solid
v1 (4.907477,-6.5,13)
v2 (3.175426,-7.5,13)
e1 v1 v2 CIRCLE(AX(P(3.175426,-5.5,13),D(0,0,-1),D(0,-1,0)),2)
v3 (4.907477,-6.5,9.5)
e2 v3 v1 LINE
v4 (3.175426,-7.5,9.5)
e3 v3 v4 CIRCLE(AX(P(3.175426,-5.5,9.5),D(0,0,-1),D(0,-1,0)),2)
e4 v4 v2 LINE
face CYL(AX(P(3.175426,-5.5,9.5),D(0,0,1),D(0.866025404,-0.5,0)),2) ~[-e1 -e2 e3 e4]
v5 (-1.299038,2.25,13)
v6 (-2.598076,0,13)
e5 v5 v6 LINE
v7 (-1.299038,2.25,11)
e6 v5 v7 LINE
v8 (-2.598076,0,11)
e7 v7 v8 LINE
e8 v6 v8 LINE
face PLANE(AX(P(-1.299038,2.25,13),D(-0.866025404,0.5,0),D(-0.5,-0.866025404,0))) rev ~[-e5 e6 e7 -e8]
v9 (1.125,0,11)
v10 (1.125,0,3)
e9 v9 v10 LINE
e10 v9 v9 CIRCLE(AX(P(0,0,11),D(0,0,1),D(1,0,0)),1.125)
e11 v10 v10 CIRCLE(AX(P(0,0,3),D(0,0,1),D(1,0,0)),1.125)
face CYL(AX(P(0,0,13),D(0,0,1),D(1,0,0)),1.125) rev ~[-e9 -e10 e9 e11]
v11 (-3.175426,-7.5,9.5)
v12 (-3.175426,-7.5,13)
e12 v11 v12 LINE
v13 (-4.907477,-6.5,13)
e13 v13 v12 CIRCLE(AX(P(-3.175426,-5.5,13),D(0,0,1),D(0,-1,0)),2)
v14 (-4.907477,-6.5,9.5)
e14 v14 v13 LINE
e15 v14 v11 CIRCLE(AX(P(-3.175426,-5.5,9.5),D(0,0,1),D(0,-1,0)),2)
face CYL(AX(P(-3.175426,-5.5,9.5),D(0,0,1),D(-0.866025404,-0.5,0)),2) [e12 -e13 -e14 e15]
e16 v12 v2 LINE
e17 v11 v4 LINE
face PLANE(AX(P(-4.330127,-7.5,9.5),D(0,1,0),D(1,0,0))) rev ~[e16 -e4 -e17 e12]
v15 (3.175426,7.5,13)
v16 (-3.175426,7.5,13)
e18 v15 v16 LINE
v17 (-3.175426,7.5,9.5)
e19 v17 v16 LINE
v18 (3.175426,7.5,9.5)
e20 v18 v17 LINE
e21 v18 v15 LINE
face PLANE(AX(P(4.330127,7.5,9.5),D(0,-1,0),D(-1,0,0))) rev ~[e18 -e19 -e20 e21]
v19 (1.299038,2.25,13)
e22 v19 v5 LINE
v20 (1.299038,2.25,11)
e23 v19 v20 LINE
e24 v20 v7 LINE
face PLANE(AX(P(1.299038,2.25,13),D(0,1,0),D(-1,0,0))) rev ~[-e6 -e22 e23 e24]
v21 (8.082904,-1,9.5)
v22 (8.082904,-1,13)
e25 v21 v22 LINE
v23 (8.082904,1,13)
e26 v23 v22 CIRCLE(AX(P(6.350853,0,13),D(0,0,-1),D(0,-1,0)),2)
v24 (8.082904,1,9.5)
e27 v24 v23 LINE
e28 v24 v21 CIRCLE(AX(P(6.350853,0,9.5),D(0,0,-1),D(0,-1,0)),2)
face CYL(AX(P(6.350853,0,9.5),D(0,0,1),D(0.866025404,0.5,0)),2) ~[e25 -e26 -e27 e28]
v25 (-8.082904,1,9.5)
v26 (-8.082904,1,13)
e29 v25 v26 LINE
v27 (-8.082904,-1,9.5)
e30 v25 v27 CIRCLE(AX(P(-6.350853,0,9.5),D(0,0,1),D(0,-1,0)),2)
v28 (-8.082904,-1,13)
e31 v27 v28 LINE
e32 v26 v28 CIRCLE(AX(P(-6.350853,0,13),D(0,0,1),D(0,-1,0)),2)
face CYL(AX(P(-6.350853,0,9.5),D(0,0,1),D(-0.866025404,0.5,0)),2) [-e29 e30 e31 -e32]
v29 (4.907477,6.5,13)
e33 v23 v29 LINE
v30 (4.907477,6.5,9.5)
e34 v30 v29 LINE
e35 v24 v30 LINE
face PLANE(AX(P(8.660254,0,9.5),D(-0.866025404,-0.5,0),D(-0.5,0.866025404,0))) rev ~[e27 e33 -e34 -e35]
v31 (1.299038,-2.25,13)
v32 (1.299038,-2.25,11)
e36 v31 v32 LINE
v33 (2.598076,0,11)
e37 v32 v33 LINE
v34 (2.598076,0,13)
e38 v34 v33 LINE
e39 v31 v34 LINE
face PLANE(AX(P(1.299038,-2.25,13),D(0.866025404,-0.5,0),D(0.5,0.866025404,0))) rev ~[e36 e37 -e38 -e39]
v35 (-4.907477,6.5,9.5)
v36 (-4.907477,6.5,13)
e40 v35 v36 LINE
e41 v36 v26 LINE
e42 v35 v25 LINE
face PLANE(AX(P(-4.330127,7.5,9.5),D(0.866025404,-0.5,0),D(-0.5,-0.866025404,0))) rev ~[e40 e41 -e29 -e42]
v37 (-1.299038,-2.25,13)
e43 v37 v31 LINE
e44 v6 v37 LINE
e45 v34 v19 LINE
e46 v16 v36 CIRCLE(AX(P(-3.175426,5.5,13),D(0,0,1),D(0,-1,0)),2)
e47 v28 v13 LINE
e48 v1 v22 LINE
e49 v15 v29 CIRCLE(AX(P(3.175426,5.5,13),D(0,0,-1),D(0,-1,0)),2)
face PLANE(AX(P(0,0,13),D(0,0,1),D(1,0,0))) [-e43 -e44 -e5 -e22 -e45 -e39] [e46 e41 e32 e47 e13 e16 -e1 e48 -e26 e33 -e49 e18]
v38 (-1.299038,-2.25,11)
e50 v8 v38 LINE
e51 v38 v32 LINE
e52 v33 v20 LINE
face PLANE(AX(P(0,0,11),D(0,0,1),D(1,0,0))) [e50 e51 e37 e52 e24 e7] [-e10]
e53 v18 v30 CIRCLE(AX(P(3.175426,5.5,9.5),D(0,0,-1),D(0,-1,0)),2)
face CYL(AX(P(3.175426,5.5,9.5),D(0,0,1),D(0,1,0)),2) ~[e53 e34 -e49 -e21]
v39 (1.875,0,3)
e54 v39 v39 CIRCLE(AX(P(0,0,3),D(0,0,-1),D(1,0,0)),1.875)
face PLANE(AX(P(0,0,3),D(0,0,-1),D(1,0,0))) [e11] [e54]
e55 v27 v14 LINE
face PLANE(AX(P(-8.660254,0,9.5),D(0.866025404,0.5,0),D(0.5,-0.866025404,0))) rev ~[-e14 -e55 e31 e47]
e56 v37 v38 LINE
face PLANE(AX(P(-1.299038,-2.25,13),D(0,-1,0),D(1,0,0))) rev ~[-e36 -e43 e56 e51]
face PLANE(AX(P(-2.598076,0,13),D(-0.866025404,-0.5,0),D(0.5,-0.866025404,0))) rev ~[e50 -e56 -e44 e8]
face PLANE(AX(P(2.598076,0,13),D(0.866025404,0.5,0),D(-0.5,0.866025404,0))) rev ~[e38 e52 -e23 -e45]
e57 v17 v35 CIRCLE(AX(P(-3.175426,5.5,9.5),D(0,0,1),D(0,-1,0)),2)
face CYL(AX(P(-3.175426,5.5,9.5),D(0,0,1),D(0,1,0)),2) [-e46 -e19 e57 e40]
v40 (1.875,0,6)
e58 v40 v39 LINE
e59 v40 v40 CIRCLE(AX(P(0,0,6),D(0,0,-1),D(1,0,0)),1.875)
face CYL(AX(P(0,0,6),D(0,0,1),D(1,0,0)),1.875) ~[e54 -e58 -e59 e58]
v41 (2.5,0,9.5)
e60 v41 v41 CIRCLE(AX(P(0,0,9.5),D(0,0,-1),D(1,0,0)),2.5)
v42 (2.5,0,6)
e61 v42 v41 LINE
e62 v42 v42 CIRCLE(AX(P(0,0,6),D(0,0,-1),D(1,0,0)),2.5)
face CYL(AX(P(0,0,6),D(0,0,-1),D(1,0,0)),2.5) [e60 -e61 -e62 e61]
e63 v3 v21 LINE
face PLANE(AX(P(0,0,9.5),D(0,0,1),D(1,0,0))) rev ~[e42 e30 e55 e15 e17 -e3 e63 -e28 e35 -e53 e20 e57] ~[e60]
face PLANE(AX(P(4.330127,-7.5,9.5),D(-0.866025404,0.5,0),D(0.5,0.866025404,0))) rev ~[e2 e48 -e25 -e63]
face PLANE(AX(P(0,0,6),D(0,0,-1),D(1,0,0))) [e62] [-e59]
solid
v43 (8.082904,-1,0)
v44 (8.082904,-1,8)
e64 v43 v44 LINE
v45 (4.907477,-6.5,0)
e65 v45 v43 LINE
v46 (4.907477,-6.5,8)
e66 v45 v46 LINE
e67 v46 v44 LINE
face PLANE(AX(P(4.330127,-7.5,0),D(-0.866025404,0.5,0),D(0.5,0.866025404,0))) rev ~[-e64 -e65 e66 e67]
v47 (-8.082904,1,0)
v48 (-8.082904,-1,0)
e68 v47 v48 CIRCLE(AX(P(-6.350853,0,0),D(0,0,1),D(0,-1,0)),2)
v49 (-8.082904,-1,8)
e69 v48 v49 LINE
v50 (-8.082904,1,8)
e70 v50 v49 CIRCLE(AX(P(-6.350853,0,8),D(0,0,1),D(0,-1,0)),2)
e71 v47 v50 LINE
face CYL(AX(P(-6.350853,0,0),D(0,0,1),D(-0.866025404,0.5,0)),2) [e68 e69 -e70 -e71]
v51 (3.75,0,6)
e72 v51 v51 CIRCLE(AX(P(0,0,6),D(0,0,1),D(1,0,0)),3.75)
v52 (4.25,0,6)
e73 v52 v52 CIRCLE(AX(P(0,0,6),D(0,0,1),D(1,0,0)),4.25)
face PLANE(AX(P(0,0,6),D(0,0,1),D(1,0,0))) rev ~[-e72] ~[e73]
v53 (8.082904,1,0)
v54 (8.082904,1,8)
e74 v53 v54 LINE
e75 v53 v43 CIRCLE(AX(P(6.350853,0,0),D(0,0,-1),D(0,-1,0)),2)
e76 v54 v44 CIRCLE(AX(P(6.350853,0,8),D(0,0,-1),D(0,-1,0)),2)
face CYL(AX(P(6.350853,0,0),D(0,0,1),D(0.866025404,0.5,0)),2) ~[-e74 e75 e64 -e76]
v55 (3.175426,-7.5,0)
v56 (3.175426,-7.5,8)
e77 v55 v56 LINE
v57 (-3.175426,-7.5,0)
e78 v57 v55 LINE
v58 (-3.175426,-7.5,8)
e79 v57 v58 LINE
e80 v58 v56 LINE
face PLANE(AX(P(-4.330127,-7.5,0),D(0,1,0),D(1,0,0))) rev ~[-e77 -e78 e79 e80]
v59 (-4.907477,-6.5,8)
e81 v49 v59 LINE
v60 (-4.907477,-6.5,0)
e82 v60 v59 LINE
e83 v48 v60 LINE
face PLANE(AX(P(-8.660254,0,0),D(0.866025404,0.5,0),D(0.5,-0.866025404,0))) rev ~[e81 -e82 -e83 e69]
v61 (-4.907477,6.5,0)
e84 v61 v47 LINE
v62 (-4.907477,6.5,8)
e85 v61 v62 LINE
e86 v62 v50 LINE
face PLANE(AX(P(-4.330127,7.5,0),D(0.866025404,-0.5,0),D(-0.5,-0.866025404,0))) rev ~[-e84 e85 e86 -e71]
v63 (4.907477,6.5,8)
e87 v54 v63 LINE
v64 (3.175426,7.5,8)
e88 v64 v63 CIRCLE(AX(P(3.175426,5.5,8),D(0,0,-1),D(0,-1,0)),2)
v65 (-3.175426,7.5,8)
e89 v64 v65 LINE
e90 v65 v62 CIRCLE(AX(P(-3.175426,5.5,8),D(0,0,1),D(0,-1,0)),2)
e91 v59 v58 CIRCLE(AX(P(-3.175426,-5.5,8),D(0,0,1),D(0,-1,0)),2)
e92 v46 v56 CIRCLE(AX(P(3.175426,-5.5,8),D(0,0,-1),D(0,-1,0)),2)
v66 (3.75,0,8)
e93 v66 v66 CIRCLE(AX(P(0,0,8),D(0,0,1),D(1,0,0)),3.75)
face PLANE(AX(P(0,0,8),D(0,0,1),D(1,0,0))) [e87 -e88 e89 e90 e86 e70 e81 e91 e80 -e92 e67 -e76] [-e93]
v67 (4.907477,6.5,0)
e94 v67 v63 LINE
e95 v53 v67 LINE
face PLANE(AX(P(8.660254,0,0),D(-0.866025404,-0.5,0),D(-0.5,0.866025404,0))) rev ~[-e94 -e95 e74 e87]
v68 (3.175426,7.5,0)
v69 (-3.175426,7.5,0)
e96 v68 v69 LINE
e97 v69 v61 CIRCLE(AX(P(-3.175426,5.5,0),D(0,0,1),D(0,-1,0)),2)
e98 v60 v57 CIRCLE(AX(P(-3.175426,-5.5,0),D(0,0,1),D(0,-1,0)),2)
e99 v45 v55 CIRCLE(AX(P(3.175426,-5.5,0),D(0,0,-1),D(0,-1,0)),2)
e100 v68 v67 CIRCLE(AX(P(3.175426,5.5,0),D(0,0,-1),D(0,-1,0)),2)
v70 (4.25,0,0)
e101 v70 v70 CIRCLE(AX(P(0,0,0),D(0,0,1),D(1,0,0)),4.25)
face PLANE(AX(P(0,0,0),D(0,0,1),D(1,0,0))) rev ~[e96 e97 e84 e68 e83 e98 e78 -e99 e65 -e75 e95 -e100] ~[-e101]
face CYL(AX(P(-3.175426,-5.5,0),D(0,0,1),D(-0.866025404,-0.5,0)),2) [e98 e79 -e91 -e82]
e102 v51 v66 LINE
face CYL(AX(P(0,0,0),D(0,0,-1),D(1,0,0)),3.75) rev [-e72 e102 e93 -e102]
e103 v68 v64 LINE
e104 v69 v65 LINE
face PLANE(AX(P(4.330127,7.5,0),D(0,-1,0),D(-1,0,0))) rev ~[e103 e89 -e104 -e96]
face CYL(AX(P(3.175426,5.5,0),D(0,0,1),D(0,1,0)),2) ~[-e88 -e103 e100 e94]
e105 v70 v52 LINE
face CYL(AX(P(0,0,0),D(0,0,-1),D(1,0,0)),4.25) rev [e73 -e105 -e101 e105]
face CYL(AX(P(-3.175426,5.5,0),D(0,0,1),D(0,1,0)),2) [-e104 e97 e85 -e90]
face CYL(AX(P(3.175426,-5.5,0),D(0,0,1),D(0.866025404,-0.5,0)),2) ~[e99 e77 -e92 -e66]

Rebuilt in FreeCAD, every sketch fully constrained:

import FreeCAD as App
import Part
import Sketcher
Q = App.Units.Quantity


def edges_at(feature, points):
    """Names of the edges that pass closest to the given points."""
    edges = feature.Shape.Edges
    near = lambda p: min(range(len(edges)), key=lambda i: edges[i].distToShape(Part.Vertex(*p))[0])
    return sorted({f"Edge{near(p) + 1}" for p in points})


def add_polygon(sketch, points):
    """Adds a closed chain of lines whose ends are joined by coincident constraints."""
    first, n = sketch.GeometryCount, len(points)
    for a, b in zip(points, points[1:] + points[:1]):
        sketch.addGeometry(Part.LineSegment(App.Vector(*a, 0), App.Vector(*b, 0)), False)
    for i in range(n):
        sketch.addConstraint(Sketcher.Constraint("Coincident", first + i, 2, first + (i + 1) % n, 1))

doc = App.newDocument("Part")
body = doc.addObject("PartDesign::Body", "Body")

sketch1 = body.newObject("Sketcher::SketchObject", "Sketch")
sketch1.AttachmentSupport = (doc.getObject("XY_Plane"), [""])
sketch1.MapMode = "FlatFace"
add_polygon(sketch1, [(4.330127, 7.5), (-4.330127, 7.5), (-8.660254, 0), (-4.330127, -7.5), (4.330127, -7.5), (8.660254, 0)])
sketch1.addGeometry(Part.Circle(App.Vector(0, 0, 0), App.Vector(0, 0, 1), 3.75), False)
sketch1.addConstraint([
    Sketcher.Constraint("Horizontal", 0),
    Sketcher.Constraint("Horizontal", 3),
    Sketcher.Constraint("Coincident", 6, 3, -1, 1),
    Sketcher.Constraint("Symmetric", 0, 2, 3, 2, -1, 1),
    Sketcher.Constraint("Symmetric", 1, 2, 4, 2, -1, 1),
    Sketcher.Constraint("PointOnObject", 1, 2, -1),
    Sketcher.Constraint("Parallel", 2, 5),
    Sketcher.Constraint("Vertical", 0, 2, 2, 2),
    Sketcher.Constraint("Diameter", 6, 7.5),
    Sketcher.Constraint("Angle", 1, Q("-120 deg")),
    Sketcher.Constraint("DistanceY", 2, 2, 0, 2, 15.0),
    Sketcher.Constraint("DistanceX", 0, 2, 0, 1, 8.660254),
])
pad1 = body.newObject("PartDesign::Pad", "Pad")
pad1.Profile = sketch1
pad1.Length = 8

sketch2 = body.newObject("Sketcher::SketchObject", "Sketch001")
sketch2.AttachmentSupport = (doc.getObject("XY_Plane"), [""])
sketch2.MapMode = "FlatFace"
sketch2.addGeometry([
    Part.Circle(App.Vector(0, 0, 0), App.Vector(0, 0, 1), 4.25),
    Part.Circle(App.Vector(0, 0, 0), App.Vector(0, 0, 1), 3.75),
], False)
sketch2.addConstraint([
    Sketcher.Constraint("Coincident", 0, 3, -1, 1),
    Sketcher.Constraint("Coincident", 1, 3, -1, 1),
    Sketcher.Constraint("Diameter", 0, 8.5),
    Sketcher.Constraint("Diameter", 1, 7.5),
])
pocket1 = body.newObject("PartDesign::Pocket", "Pocket")
pocket1.Profile = sketch2
pocket1.Length = 6
pocket1.Reversed = True
doc.recompute()

fillet = body.newObject("PartDesign::Fillet", "Fillet")
fillet.Base = (pocket1, edges_at(pocket1, [
    (-8.66, 0, 4),
    (-4.33, 7.5, 4),
    (-4.33, -7.5, 4),
    (4.33, -7.5, 4),
    (8.66, 0, 4),
    (4.33, 7.5, 4),
]))
fillet.Radius = 2
body2 = doc.addObject("PartDesign::Body", "Body001")

sketch3 = body2.newObject("Sketcher::SketchObject", "Sketch002")
sketch3.AttachmentSupport = (doc.getObject("XY_Plane001"), [""])
sketch3.MapMode = "FlatFace"
sketch3.AttachmentOffset = App.Placement(App.Vector(0, 0, 6), App.Rotation())
sketch3.addGeometry(Part.Circle(App.Vector(0, 0, 0), App.Vector(0, 0, 1), 2.5), False)
sketch3.addConstraint([
    Sketcher.Constraint("Coincident", 0, 3, -1, 1),
    Sketcher.Constraint("Diameter", 0, 5.0),
])
pad2 = body2.newObject("PartDesign::Pad", "Pad001")
pad2.Profile = sketch3
pad2.Length = 3.5

sketch4 = body2.newObject("Sketcher::SketchObject", "Sketch003")
sketch4.AttachmentSupport = (doc.getObject("XY_Plane001"), [""])
sketch4.MapMode = "FlatFace"
sketch4.AttachmentOffset = App.Placement(App.Vector(0, 0, 9.5), App.Rotation())
add_polygon(sketch4, [(4.330127, 7.5), (-4.330127, 7.5), (-8.660254, 0), (-4.330127, -7.5), (4.330127, -7.5), (8.660254, 0)])
sketch4.addConstraint([
    Sketcher.Constraint("Horizontal", 0),
    Sketcher.Constraint("Horizontal", 3),
    Sketcher.Constraint("Symmetric", 0, 2, 3, 2, -1, 1),
    Sketcher.Constraint("Symmetric", 1, 2, 4, 2, -1, 1),
    Sketcher.Constraint("PointOnObject", 1, 2, -1),
    Sketcher.Constraint("Parallel", 2, 5),
    Sketcher.Constraint("Vertical", 0, 2, 2, 2),
    Sketcher.Constraint("Angle", 1, Q("-120 deg")),
    Sketcher.Constraint("DistanceY", 2, 2, 0, 2, 15.0),
    Sketcher.Constraint("DistanceX", 0, 2, 0, 1, 8.660254),
])
pad3 = body2.newObject("PartDesign::Pad", "Pad002")
pad3.Profile = sketch4
pad3.Length = 3.5

sketch5 = body2.newObject("Sketcher::SketchObject", "Sketch004")
sketch5.AttachmentSupport = (doc.getObject("XY_Plane001"), [""])
sketch5.MapMode = "FlatFace"
sketch5.AttachmentOffset = App.Placement(App.Vector(0, 0, 13), App.Rotation())
add_polygon(sketch5, [(1.299038, 2.25), (-1.299038, 2.25), (-2.598076, 0), (-1.299038, -2.25), (1.299038, -2.25), (2.598076, 0)])
sketch5.addGeometry(Part.Circle(App.Vector(0, 0, 0), App.Vector(0, 0, 1), 1.125), False)
sketch5.addConstraint([
    Sketcher.Constraint("Horizontal", 0),
    Sketcher.Constraint("Horizontal", 3),
    Sketcher.Constraint("Coincident", 6, 3, -1, 1),
    Sketcher.Constraint("Symmetric", 0, 2, 3, 2, -1, 1),
    Sketcher.Constraint("Symmetric", 1, 2, 4, 2, -1, 1),
    Sketcher.Constraint("PointOnObject", 1, 2, -1),
    Sketcher.Constraint("Parallel", 2, 5),
    Sketcher.Constraint("Vertical", 0, 2, 2, 2),
    Sketcher.Constraint("Diameter", 6, 2.25),
    Sketcher.Constraint("Angle", 1, Q("-120 deg")),
    Sketcher.Constraint("DistanceY", 2, 2, 0, 2, 4.5),
    Sketcher.Constraint("DistanceX", 0, 2, 0, 1, 2.598076),
])
pocket2 = body2.newObject("PartDesign::Pocket", "Pocket001")
pocket2.Profile = sketch5
pocket2.Length = 2
doc.recompute()

fillet2 = body2.newObject("PartDesign::Fillet", "Fillet001")
fillet2.Base = (pocket2, edges_at(pocket2, [
    (-8.66, 0, 11.25),
    (-4.33, 7.5, 11.25),
    (-4.33, -7.5, 11.25),
    (4.33, 7.5, 11.25),
    (8.66, 0, 11.25),
    (4.33, -7.5, 11.25),
]))
fillet2.Radius = 2

sketch6 = body2.newObject("Sketcher::SketchObject", "Sketch005")
sketch6.AttachmentSupport = (doc.getObject("XY_Plane001"), [""])
sketch6.MapMode = "FlatFace"
sketch6.AttachmentOffset = App.Placement(App.Vector(0, 0, 6), App.Rotation())
sketch6.addGeometry(Part.Circle(App.Vector(0, 0, 0), App.Vector(0, 0, 1), 1.875), False)
sketch6.addConstraint([
    Sketcher.Constraint("Coincident", 0, 3, -1, 1),
    Sketcher.Constraint("Diameter", 0, 3.75),
])
pad4 = body2.newObject("PartDesign::Pad", "Pad003")
pad4.Profile = sketch6
pad4.Length = 3
pad4.Reversed = True

sketch7 = body2.newObject("Sketcher::SketchObject", "Sketch006")
sketch7.AttachmentSupport = (doc.getObject("XY_Plane001"), [""])
sketch7.MapMode = "FlatFace"
sketch7.AttachmentOffset = App.Placement(App.Vector(0, 0, 13), App.Rotation())
sketch7.addGeometry(Part.Circle(App.Vector(0, 0, 0), App.Vector(0, 0, 1), 1.125), False)
sketch7.addConstraint([
    Sketcher.Constraint("Coincident", 0, 3, -1, 1),
    Sketcher.Constraint("Diameter", 0, 2.25),
])
pocket3 = body2.newObject("PartDesign::Pocket", "Pocket002")
pocket3.Profile = sketch7
pocket3.Type = "ThroughAll"

doc.recompute()
